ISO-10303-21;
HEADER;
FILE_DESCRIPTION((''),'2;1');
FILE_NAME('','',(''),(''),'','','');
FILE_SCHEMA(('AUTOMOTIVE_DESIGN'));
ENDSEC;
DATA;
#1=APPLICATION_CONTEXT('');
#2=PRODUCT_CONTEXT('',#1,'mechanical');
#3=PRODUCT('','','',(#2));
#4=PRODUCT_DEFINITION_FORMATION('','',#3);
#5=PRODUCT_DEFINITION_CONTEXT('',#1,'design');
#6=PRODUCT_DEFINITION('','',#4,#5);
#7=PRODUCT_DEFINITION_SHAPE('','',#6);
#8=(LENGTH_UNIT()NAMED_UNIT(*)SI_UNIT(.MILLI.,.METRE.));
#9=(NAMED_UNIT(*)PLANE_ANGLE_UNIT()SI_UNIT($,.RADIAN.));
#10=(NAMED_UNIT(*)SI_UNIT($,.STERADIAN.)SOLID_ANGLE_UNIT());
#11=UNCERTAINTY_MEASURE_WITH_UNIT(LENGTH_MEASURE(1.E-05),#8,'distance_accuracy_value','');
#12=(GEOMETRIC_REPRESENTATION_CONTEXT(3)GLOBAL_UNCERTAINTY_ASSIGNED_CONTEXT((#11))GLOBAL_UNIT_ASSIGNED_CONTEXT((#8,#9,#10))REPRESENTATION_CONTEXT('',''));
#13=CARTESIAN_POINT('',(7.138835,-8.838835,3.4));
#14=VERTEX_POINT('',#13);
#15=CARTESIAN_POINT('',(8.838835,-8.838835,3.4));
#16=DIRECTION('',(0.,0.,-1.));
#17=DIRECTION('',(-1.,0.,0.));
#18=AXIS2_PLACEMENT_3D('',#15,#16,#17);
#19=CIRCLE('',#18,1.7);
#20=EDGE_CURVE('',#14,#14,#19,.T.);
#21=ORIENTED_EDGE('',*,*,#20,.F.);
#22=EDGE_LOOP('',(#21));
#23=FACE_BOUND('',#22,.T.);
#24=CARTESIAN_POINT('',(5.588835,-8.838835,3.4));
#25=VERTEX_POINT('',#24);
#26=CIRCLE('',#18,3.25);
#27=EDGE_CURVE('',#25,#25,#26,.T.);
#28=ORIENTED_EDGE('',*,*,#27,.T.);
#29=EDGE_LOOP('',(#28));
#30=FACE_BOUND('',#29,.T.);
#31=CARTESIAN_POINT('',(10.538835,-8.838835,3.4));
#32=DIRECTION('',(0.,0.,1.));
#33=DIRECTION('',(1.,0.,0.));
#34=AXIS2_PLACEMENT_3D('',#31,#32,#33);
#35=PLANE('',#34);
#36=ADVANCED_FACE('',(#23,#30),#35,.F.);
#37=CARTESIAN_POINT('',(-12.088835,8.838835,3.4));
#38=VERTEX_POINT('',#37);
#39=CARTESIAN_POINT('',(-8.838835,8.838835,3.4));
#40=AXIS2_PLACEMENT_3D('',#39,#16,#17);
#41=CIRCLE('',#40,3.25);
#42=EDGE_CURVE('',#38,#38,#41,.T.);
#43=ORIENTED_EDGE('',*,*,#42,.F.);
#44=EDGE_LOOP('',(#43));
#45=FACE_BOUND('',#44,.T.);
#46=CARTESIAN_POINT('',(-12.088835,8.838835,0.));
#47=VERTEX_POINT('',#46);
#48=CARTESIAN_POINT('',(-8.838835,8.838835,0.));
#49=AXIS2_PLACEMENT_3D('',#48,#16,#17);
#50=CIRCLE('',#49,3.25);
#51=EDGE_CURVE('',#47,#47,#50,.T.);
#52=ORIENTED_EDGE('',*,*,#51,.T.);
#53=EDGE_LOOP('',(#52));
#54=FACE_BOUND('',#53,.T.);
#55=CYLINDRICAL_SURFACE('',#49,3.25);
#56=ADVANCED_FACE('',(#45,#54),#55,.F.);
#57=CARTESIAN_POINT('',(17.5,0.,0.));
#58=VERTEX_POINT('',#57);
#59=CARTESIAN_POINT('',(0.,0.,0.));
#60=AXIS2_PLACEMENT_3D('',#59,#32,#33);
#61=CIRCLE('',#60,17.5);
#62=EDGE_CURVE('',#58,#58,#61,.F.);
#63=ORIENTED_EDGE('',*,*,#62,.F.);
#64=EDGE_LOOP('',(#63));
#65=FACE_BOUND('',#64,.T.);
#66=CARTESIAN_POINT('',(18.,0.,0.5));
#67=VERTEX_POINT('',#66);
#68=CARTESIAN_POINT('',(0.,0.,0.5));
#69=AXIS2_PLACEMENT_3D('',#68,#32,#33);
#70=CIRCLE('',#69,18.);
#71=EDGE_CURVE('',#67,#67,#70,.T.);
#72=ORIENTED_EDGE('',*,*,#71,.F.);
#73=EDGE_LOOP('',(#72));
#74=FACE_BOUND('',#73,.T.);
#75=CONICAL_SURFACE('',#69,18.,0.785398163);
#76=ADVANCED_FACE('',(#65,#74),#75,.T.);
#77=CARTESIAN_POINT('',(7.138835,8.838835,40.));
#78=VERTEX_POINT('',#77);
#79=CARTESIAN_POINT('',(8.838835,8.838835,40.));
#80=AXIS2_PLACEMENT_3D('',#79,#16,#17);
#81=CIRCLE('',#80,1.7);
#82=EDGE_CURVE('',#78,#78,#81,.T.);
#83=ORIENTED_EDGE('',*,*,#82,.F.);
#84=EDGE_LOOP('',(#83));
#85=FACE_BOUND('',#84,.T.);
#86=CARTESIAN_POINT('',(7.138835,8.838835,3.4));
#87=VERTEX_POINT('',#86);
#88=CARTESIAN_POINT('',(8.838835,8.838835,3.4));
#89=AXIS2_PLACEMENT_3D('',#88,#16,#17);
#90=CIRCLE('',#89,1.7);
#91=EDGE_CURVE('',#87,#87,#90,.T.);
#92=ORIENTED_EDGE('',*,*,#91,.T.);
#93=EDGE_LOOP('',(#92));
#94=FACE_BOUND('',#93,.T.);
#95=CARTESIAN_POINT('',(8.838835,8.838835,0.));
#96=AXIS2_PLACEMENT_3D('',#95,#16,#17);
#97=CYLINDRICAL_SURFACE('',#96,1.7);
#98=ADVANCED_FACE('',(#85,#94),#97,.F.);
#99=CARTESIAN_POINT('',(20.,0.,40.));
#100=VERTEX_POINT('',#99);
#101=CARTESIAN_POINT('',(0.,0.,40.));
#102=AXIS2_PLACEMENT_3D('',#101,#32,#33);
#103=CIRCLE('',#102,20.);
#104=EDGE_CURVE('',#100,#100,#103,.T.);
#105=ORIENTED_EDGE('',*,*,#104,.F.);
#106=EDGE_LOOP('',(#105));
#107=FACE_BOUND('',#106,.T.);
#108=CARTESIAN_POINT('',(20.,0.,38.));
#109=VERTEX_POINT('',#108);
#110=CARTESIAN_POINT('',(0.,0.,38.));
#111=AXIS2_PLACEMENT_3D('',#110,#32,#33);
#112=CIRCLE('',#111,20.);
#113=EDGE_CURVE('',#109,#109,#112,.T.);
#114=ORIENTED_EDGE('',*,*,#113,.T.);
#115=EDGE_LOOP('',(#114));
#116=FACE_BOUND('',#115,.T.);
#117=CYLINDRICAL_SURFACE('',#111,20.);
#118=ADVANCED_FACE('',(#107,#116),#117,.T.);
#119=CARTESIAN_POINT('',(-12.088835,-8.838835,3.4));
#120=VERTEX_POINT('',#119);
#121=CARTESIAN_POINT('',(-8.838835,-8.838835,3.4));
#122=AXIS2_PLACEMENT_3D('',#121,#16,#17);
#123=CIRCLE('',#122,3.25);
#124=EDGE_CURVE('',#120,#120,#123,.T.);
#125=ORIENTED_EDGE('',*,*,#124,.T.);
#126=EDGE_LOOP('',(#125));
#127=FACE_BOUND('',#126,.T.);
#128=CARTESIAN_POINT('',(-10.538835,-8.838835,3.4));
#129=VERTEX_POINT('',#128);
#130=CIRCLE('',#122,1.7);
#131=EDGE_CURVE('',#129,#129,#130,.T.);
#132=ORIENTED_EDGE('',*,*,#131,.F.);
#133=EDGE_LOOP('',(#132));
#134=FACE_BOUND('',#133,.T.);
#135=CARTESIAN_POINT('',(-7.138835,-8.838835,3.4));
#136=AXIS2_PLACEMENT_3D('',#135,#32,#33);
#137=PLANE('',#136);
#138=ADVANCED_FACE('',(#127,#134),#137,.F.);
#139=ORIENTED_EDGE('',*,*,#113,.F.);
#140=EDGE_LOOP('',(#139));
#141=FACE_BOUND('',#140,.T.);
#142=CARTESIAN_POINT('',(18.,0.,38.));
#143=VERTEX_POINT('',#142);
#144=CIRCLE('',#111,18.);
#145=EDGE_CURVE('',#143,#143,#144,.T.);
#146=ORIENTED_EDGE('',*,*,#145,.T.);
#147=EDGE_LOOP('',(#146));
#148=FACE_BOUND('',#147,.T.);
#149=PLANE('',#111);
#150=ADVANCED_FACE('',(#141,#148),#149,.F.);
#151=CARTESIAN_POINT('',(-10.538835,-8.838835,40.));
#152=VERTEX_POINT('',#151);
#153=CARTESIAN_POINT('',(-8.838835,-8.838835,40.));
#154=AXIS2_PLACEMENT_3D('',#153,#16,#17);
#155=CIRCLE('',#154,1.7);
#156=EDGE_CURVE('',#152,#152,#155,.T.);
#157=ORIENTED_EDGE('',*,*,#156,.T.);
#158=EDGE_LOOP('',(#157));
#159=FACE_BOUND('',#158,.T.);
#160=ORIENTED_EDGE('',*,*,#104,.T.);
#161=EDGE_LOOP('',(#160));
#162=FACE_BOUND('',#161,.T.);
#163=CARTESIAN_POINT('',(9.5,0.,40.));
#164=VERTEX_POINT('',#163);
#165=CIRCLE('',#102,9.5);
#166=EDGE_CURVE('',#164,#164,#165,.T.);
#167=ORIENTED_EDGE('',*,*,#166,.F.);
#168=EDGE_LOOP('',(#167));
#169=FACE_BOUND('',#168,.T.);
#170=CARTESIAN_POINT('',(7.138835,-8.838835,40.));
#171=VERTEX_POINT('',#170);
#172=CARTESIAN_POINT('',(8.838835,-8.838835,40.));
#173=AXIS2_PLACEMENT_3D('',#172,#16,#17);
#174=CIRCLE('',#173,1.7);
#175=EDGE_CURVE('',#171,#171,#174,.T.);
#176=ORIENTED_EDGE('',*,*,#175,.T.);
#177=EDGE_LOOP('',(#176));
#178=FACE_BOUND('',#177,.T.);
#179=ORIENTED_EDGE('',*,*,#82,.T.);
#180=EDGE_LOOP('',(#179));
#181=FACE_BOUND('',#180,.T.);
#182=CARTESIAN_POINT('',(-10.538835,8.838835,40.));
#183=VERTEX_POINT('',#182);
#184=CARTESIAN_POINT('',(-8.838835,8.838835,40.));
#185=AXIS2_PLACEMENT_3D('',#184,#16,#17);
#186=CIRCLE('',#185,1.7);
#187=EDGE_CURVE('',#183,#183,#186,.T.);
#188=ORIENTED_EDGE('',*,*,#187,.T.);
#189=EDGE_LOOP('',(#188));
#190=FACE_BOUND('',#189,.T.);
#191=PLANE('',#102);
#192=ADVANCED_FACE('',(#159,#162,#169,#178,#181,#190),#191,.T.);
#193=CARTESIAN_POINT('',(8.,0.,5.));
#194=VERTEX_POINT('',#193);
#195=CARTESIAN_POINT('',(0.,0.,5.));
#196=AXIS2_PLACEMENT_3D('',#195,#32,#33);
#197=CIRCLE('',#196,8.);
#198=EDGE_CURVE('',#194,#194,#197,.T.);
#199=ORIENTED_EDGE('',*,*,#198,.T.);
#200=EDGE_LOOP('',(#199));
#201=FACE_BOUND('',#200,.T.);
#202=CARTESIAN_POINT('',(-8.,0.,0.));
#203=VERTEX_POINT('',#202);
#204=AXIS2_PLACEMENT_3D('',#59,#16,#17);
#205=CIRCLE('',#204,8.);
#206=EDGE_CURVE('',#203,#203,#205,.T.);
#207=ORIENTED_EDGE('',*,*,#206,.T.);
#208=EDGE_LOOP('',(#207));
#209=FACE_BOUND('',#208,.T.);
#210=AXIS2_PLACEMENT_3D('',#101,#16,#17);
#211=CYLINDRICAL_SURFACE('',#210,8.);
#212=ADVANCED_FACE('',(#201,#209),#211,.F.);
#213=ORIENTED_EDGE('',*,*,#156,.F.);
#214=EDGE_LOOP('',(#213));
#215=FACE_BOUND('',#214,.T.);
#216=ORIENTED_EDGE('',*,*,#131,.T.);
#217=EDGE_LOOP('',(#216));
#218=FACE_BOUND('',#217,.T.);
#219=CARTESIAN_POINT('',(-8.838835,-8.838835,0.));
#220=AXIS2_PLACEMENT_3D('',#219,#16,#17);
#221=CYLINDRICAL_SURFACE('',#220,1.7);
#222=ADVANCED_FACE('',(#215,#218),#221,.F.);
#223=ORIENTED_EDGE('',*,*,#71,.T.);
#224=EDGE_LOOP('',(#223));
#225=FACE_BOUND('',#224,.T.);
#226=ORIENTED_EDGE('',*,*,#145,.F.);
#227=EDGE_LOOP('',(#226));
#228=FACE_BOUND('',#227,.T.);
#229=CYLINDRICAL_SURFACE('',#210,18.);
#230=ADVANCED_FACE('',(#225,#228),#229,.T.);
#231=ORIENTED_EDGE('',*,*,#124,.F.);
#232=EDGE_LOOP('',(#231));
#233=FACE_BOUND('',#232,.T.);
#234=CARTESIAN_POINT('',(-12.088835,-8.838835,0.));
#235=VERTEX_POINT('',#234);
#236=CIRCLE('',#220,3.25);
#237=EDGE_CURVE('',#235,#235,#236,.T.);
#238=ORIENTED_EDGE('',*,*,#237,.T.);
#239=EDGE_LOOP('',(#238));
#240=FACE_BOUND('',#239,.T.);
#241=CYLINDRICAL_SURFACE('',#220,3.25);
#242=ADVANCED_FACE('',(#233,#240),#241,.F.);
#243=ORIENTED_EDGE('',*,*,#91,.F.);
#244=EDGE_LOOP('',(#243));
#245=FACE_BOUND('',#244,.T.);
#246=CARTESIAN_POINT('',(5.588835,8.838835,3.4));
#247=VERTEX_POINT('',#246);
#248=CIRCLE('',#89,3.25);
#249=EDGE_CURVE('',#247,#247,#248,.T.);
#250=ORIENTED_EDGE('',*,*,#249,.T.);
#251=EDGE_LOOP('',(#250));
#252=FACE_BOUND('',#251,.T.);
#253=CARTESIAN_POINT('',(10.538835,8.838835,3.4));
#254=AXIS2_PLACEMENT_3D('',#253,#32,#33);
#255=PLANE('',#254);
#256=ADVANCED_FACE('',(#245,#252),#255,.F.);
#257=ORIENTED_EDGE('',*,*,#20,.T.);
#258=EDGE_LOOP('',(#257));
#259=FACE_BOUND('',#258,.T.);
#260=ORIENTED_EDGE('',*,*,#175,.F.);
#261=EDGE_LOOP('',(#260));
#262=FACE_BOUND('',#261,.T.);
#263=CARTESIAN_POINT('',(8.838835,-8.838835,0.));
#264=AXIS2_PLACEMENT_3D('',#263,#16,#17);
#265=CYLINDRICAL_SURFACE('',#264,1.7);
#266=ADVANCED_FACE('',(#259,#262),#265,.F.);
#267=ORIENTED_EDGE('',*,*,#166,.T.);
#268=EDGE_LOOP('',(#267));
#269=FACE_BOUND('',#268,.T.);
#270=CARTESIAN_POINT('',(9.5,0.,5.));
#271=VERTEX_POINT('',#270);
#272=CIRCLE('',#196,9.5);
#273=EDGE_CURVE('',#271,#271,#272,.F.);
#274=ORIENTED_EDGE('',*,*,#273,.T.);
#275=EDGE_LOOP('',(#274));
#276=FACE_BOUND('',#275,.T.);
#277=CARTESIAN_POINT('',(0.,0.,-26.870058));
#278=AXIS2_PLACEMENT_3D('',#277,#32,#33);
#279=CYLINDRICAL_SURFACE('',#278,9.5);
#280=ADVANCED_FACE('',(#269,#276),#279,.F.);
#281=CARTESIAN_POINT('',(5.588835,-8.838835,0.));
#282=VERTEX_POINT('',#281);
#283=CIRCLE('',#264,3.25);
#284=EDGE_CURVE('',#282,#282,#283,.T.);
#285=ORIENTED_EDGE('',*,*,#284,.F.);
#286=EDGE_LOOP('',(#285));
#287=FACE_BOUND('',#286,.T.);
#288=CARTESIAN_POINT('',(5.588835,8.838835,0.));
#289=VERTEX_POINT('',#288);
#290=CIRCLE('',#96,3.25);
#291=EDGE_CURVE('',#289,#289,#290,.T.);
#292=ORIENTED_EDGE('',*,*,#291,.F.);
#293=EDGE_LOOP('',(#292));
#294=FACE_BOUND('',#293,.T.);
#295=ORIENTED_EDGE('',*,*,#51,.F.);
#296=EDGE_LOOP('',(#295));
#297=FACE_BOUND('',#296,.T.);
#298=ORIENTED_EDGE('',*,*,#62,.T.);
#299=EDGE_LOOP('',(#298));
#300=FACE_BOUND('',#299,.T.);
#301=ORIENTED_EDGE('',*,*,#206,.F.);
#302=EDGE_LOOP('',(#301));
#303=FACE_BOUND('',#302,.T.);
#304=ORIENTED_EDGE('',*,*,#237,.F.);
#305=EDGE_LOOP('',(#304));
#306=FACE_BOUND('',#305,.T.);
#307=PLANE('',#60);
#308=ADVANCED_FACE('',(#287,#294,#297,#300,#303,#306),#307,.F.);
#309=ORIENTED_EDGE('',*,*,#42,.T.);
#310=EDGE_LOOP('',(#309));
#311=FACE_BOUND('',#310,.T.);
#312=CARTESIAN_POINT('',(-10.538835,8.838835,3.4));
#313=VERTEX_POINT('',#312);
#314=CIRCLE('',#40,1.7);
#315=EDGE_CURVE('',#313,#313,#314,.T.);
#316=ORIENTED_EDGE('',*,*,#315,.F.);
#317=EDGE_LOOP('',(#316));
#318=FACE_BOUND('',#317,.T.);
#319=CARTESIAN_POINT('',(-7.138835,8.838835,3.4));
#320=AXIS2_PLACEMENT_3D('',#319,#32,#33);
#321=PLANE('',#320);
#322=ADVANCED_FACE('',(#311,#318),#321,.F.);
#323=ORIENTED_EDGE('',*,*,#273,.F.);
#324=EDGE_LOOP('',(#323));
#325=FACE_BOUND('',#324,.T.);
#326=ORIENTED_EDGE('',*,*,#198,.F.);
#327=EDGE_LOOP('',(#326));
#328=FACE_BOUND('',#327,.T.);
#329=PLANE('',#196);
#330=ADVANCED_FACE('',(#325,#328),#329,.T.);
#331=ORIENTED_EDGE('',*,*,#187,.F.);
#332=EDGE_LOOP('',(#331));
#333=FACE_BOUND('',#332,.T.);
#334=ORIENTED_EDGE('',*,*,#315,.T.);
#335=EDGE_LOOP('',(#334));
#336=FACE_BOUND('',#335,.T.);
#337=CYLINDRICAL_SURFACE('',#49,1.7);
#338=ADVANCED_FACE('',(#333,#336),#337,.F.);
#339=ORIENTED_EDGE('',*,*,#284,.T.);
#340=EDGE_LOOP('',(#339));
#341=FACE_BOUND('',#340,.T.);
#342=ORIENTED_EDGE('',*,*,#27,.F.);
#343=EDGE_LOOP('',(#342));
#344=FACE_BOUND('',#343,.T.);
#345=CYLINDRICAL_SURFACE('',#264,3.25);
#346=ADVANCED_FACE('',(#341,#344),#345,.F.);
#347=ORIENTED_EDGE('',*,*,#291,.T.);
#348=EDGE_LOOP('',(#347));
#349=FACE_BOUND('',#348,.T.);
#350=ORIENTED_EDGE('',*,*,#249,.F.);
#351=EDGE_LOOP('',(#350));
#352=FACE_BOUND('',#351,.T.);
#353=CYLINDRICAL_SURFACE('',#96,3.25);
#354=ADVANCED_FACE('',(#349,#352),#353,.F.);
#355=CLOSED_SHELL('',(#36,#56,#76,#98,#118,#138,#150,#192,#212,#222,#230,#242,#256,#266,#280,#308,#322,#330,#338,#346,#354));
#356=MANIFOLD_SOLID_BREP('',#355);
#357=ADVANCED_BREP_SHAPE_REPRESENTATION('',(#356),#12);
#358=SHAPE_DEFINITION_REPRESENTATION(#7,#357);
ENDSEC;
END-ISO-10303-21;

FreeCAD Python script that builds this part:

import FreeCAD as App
import Part
import Sketcher

V = App.Vector


def edges_at(feature, points):
    """Names of the edges that pass closest to the given points."""
    edges = feature.Shape.Edges
    near = lambda p: min(range(len(edges)), key=lambda i: edges[i].distToShape(Part.Vertex(*p))[0])
    return sorted({f"Edge{near(p) + 1}" for p in points})

doc = App.newDocument("Part")
body = doc.addObject("PartDesign::Body", "Body")

# Sketch on XY plane
sketch1 = body.newObject("Sketcher::SketchObject", "Sketch")
sketch1.AttachmentSupport = (doc.getObject("XY_Plane"), [""])
sketch1.MapMode = "FlatFace"
sketch1.addGeometry(Part.Circle(V(0, 0, 0), V(0, 0, 1), 18), False)
sketch1.addConstraint([
    Sketcher.Constraint("Coincident", 0, 3, -1, 1),
    Sketcher.Constraint("Diameter", 0, 36.0),
])
pad1 = body.newObject("PartDesign::Pad", "Pad")
pad1.Profile = sketch1
pad1.Length = 40

# Sketch on XY plane
sketch2 = body.newObject("Sketcher::SketchObject", "Sketch001")
sketch2.AttachmentSupport = (doc.getObject("XY_Plane"), [""])
sketch2.MapMode = "FlatFace"
sketch2.AttachmentOffset = App.Placement(V(0, 0, 40), App.Rotation())
sketch2.addGeometry(Part.Circle(V(0, 0, 0), V(0, 0, 1), 20), False)
sketch2.addConstraint([
    Sketcher.Constraint("Coincident", 0, 3, -1, 1),
    Sketcher.Constraint("Diameter", 0, 40.0),
])
pad2 = body.newObject("PartDesign::Pad", "Pad001")
pad2.Profile = sketch2
pad2.Length = 2
pad2.Reversed = True

# Sketch on XY plane
sketch3 = body.newObject("Sketcher::SketchObject", "Sketch002")
sketch3.AttachmentSupport = (doc.getObject("XY_Plane"), [""])
sketch3.MapMode = "FlatFace"
sketch3.addGeometry([
    Part.Circle(V(8.8, -8.8, 0), V(0, 0, 1), 1.7),  # 0
    Part.Circle(V(8.8, 8.8, 0), V(0, 0, 1), 1.7),  # 1
    Part.Circle(V(-8.8, -8.8, 0), V(0, 0, 1), 1.7),  # 2
    Part.Circle(V(-8.8, 8.8, 0), V(0, 0, 1), 1.7),  # 3
    Part.Circle(V(0, 0, 0), V(0, 0, 1), 1.7),  # 4
], False)
sketch3.addConstraint([
    Sketcher.Constraint("Coincident", 4, 3, -1, 1),
    Sketcher.Constraint("Equal", 0, 1),
    Sketcher.Constraint("Equal", 1, 2),
    Sketcher.Constraint("Equal", 2, 3),
    Sketcher.Constraint("Equal", 3, 4),
    Sketcher.Constraint("Symmetric", 1, 3, 2, 3, -1, 1),
    Sketcher.Constraint("Symmetric", 0, 3, 3, 3, -1, 1),
    Sketcher.Constraint("Symmetric", 0, 3, 2, 3, -2),
    Sketcher.Constraint("Diameter", 0, 3.4),
    Sketcher.Constraint("DistanceY", 0, 3, 1, 3, 17.67767),
    Sketcher.Constraint("DistanceX", 2, 3, 0, 3, 17.67767),
])
doc.recompute()
hole = body.newObject("PartDesign::Hole", "Hole")
hole.Profile = sketch3
hole.ThreadType = "None"
hole.Diameter = 3.4
hole.DepthType = "ThroughAll"
hole.HoleCutType = "Counterbore"
hole.HoleCutDiameter = 6.5
hole.HoleCutDepth = 3.4
hole.Reversed = True

# Sketch on XY plane
sketch4 = body.newObject("Sketcher::SketchObject", "Sketch003")
sketch4.AttachmentSupport = (doc.getObject("XY_Plane"), [""])
sketch4.MapMode = "FlatFace"
sketch4.AttachmentOffset = App.Placement(V(0, 0, 40), App.Rotation())
sketch4.addGeometry(Part.Circle(V(0, 0, 0), V(0, 0, 1), 10), False)
sketch4.addConstraint([
    Sketcher.Constraint("Coincident", 0, 3, -1, 1),
    Sketcher.Constraint("Diameter", 0, 19.0),
])
pocket1 = body.newObject("PartDesign::Pocket", "Pocket")
pocket1.Profile = sketch4
pocket1.Length = 35

# Sketch on XY plane
sketch5 = body.newObject("Sketcher::SketchObject", "Sketch004")
sketch5.AttachmentSupport = (doc.getObject("XY_Plane"), [""])
sketch5.MapMode = "FlatFace"
sketch5.addGeometry(Part.Circle(V(0, 0, 0), V(0, 0, 1), 8), False)
sketch5.addConstraint([
    Sketcher.Constraint("Coincident", 0, 3, -1, 1),
    Sketcher.Constraint("Diameter", 0, 16.0),
])
pocket2 = body.newObject("PartDesign::Pocket", "Pocket001")
pocket2.Profile = sketch5
pocket2.Type = "ThroughAll"
pocket2.Reversed = True
doc.recompute()

chamfer = body.newObject("PartDesign::Chamfer", "Chamfer")
chamfer.Base = (pocket2, edges_at(pocket2, [(-18, 0, 0)]))
chamfer.Size = 0.5

doc.recompute()
